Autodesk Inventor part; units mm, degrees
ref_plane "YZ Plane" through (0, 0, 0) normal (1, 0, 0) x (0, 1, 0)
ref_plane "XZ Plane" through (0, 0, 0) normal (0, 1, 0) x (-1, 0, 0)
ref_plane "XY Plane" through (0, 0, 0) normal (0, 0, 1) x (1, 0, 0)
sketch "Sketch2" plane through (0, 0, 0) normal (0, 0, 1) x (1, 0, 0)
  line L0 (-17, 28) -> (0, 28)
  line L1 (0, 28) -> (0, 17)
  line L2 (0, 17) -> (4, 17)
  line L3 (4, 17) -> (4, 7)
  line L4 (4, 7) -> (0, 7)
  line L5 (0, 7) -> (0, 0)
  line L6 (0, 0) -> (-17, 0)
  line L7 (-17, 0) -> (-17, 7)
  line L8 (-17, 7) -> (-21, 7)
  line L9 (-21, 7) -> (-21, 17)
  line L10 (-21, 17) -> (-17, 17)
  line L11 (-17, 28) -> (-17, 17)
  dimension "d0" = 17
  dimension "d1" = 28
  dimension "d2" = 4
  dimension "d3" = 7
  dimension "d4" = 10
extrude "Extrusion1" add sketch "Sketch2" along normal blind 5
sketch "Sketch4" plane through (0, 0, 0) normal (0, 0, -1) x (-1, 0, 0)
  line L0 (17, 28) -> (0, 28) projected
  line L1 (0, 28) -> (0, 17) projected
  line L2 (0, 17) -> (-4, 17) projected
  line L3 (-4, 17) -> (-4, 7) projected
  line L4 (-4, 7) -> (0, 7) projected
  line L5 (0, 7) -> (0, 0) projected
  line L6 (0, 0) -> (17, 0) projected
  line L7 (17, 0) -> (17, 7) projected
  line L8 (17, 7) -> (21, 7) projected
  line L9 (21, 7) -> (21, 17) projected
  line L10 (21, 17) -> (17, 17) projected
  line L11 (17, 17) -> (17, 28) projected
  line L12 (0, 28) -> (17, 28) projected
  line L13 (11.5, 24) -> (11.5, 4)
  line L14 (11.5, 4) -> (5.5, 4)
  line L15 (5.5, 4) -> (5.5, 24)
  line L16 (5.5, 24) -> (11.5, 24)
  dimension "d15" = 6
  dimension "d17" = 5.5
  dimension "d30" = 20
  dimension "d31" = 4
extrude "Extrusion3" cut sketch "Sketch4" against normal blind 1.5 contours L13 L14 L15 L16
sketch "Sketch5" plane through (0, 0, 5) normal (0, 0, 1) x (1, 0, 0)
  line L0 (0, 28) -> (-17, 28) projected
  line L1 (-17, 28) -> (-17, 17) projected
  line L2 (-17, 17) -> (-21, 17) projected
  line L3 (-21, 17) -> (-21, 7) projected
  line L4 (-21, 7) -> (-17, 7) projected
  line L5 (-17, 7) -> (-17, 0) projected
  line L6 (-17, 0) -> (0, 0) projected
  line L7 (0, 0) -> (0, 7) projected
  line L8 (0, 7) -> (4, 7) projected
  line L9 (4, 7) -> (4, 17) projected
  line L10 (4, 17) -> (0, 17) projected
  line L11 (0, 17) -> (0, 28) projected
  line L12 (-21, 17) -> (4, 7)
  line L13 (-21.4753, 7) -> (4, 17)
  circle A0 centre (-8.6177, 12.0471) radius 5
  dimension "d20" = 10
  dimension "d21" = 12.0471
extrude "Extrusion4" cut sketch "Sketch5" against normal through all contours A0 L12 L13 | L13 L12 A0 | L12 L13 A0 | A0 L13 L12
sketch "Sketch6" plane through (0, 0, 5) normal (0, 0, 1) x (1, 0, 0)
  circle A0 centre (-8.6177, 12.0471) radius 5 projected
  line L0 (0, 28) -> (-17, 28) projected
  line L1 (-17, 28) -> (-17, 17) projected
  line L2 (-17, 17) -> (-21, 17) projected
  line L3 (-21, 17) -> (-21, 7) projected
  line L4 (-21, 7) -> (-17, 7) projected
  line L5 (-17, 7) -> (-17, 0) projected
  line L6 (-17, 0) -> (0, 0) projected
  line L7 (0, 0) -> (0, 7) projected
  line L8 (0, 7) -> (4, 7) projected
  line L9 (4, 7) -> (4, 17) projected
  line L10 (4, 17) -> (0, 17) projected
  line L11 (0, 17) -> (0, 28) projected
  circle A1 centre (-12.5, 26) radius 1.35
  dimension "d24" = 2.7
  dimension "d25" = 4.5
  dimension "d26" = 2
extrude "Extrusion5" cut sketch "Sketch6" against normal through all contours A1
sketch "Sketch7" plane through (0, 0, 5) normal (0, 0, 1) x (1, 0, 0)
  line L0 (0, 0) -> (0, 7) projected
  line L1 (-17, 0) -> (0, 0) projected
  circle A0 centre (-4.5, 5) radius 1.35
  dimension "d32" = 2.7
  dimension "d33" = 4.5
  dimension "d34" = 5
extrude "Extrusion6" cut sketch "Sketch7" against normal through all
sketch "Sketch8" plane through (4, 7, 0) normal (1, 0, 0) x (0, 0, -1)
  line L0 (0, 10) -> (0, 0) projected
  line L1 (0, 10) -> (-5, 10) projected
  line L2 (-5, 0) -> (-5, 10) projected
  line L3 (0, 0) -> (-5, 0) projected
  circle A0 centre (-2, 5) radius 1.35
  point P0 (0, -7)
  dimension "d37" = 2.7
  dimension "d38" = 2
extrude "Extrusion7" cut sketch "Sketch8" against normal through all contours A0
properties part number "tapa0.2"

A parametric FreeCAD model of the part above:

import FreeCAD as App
import Part
import Sketcher

V = App.Vector
Q = App.Units.Quantity

doc = App.newDocument("Part")
params = doc.addObject("Spreadsheet::Sheet", "Params")
for row, (alias, value) in enumerate([
    ("sketch1_width", "17 mm"),
    ("sketch1_width2", "4 mm"),
    ("sketch1_height", "10 mm"),
    ("sketch1_height2", "7 mm"),
    ("pad1_length", "5 mm"),
    ("sketch2_width", "6 mm"),
    ("sketch2_height", "20 mm"),
    ("pocket1_length", "1.5 mm"),
    ("sketch3_diameter", "10 mm"),
    ("sketch4_diameter", "2.7 mm"),
    ("sketch5_diameter", "2.7 mm"),
    ("sketch6_diameter", "2.7 mm"),
], start=1):
    params.set(f"A{row}", alias)
    params.set(f"B{row}", "=" + value)
    params.setAlias(f"B{row}", alias)

body = doc.addObject("PartDesign::Body", "Body")

# Sketch on XY plane
sketch1 = body.newObject("Sketcher::SketchObject", "Sketch")
sketch1.AttachmentSupport = (doc.getObject("XY_Plane"), [""])
sketch1.MapMode = "FlatFace"
sketch1.addGeometry([
    Part.LineSegment(V(0, 28, 0), V(-17, 28, 0)),  # 0
    Part.LineSegment(V(-17, 28, 0), V(-17, 17, 0)),  # 1
    Part.LineSegment(V(-17, 17, 0), V(-21, 17, 0)),  # 2
    Part.LineSegment(V(-21, 17, 0), V(-21, 7, 0)),  # 3
    Part.LineSegment(V(-21, 7, 0), V(-17, 7, 0)),  # 4
    Part.LineSegment(V(-17, 7, 0), V(-17, 0, 0)),  # 5
    Part.LineSegment(V(-17, 0, 0), V(0, 0, 0)),  # 6
    Part.LineSegment(V(0, 0, 0), V(0, 7, 0)),  # 7
    Part.LineSegment(V(0, 7, 0), V(4, 7, 0)),  # 8
    Part.LineSegment(V(4, 7, 0), V(4, 17, 0)),  # 9
    Part.LineSegment(V(4, 17, 0), V(0, 17, 0)),  # 10
    Part.LineSegment(V(0, 17, 0), V(0, 28, 0)),  # 11
], False)
sketch1.addConstraint([
    Sketcher.Constraint("Coincident", 0, 2, 1, 1),
    Sketcher.Constraint("Coincident", 1, 2, 2, 1),
    Sketcher.Constraint("Coincident", 2, 2, 3, 1),
    Sketcher.Constraint("Coincident", 3, 2, 4, 1),
    Sketcher.Constraint("Coincident", 4, 2, 5, 1),
    Sketcher.Constraint("Coincident", 5, 2, 6, 1),
    Sketcher.Constraint("Coincident", 6, 2, 7, 1),
    Sketcher.Constraint("Coincident", 7, 2, 8, 1),
    Sketcher.Constraint("Coincident", 8, 2, 9, 1),
    Sketcher.Constraint("Coincident", 9, 2, 10, 1),
    Sketcher.Constraint("Coincident", 10, 2, 11, 1),
    Sketcher.Constraint("Coincident", 11, 2, 0, 1),
    Sketcher.Constraint("Horizontal", 0),
    Sketcher.Constraint("Vertical", 1),
    Sketcher.Constraint("Horizontal", 2),
    Sketcher.Constraint("Vertical", 3),
    Sketcher.Constraint("Horizontal", 4),
    Sketcher.Constraint("Vertical", 5),
    Sketcher.Constraint("Horizontal", 6),
    Sketcher.Constraint("Vertical", 7),
    Sketcher.Constraint("Horizontal", 8),
    Sketcher.Constraint("Vertical", 9),
    Sketcher.Constraint("Horizontal", 10),
    Sketcher.Constraint("Vertical", 11),
    Sketcher.Constraint("Coincident", 6, 2, -1, 1),
    Sketcher.Constraint("PointOnObject", 10, 2, -2),
    Sketcher.Constraint("Horizontal", 4, 2, 7, 2),
    Sketcher.Constraint("Horizontal", 2, 2, 9, 2),
    Sketcher.Constraint("Vertical", 1, 2, 4, 2),
    Sketcher.Constraint("Equal", 4, 8),
    Sketcher.Constraint("DistanceX", 0, 2, 0, 1, Q("17 mm")),
    Sketcher.Constraint("DistanceX", 2, 2, 2, 1, Q("4 mm")),
    Sketcher.Constraint("DistanceY", 3, 2, 3, 1, Q("10 mm")),
    Sketcher.Constraint("DistanceY", 5, 2, 5, 1, Q("7 mm")),
    Sketcher.Constraint("DistanceY", -1, 1, 0, 2, Q("28 mm")),
])
sketch1.setExpression("Constraints[30]", "Params.sketch1_width")
sketch1.setExpression("Constraints[31]", "Params.sketch1_width2")
sketch1.setExpression("Constraints[32]", "Params.sketch1_height")
sketch1.setExpression("Constraints[33]", "Params.sketch1_height2")
pad1 = body.newObject("PartDesign::Pad", "Pad")
pad1.Profile = sketch1
pad1.setExpression("Length", "Params.pad1_length")

# Sketch on XY plane
sketch2 = body.newObject("Sketcher::SketchObject", "Sketch001")
sketch2.AttachmentSupport = (doc.getObject("XY_Plane"), [""])
sketch2.MapMode = "FlatFace"
sketch2.addGeometry([
    Part.LineSegment(V(-11.5, 4, 0), V(-11.5, 24, 0)),
    Part.LineSegment(V(-11.5, 24, 0), V(-5.5, 24, 0)),
    Part.LineSegment(V(-5.5, 24, 0), V(-5.5, 4, 0)),
    Part.LineSegment(V(-5.5, 4, 0), V(-11.5, 4, 0)),
], False)
sketch2.addConstraint([
    Sketcher.Constraint("Coincident", 0, 2, 1, 1),
    Sketcher.Constraint("Coincident", 1, 2, 2, 1),
    Sketcher.Constraint("Coincident", 2, 2, 3, 1),
    Sketcher.Constraint("Coincident", 3, 2, 0, 1),
    Sketcher.Constraint("Vertical", 0),
    Sketcher.Constraint("Horizontal", 1),
    Sketcher.Constraint("Vertical", 2),
    Sketcher.Constraint("Horizontal", 3),
    Sketcher.Constraint("DistanceX", 1, 1, 1, 2, Q("6 mm")),
    Sketcher.Constraint("DistanceY", 0, 1, 0, 2, Q("20 mm")),
    Sketcher.Constraint("DistanceY", -1, 1, 2, 2, Q("4 mm")),
    Sketcher.Constraint("DistanceX", 1, 2, -1, 1, Q("5.5 mm")),
])
sketch2.setExpression("Constraints[8]", "Params.sketch2_width")
sketch2.setExpression("Constraints[9]", "Params.sketch2_height")
pocket1 = body.newObject("PartDesign::Pocket", "Pocket")
pocket1.Profile = sketch2
pocket1.setExpression("Length", "Params.pocket1_length")
pocket1.Reversed = True

# Sketch on XY plane
sketch3 = body.newObject("Sketcher::SketchObject", "Sketch002")
sketch3.AttachmentSupport = (doc.getObject("XY_Plane"), [""])
sketch3.MapMode = "FlatFace"
sketch3.AttachmentOffset = App.Placement(V(0, 0, 5), App.Rotation())
sketch3.addGeometry(Part.Circle(V(-8.6177, 12.0471, 0), V(0, 0, 1), 5), False)
sketch3.addConstraint([
    Sketcher.Constraint("Diameter", 0, Q("10 mm")),
    Sketcher.Constraint("DistanceY", -1, 1, 0, 3, Q("12.047 mm")),
    Sketcher.Constraint("DistanceX", 0, 3, -1, 1, Q("8.6177 mm")),
])
sketch3.setExpression("Constraints[0]", "Params.sketch3_diameter")
pocket2 = body.newObject("PartDesign::Pocket", "Pocket001")
pocket2.Profile = sketch3
pocket2.Type = "ThroughAll"

# Sketch on XY plane
sketch4 = body.newObject("Sketcher::SketchObject", "Sketch003")
sketch4.AttachmentSupport = (doc.getObject("XY_Plane"), [""])
sketch4.MapMode = "FlatFace"
sketch4.AttachmentOffset = App.Placement(V(0, 0, 5), App.Rotation())
sketch4.addGeometry(Part.Circle(V(-12.5, 26, 0), V(0, 0, 1), 1.35), False)
sketch4.addConstraint([
    Sketcher.Constraint("Diameter", 0, Q("2.7 mm")),
    Sketcher.Constraint("DistanceY", -1, 1, 0, 3, Q("26 mm")),
    Sketcher.Constraint("DistanceX", 0, 3, -1, 1, Q("12.5 mm")),
])
sketch4.setExpression("Constraints[0]", "Params.sketch4_diameter")
pocket3 = body.newObject("PartDesign::Pocket", "Pocket002")
pocket3.Profile = sketch4
pocket3.Type = "ThroughAll"

# Sketch on XY plane
sketch5 = body.newObject("Sketcher::SketchObject", "Sketch004")
sketch5.AttachmentSupport = (doc.getObject("XY_Plane"), [""])
sketch5.MapMode = "FlatFace"
sketch5.AttachmentOffset = App.Placement(V(0, 0, 5), App.Rotation())
sketch5.addGeometry(Part.Circle(V(-4.5, 5, 0), V(0, 0, 1), 1.35), False)
sketch5.addConstraint([
    Sketcher.Constraint("Diameter", 0, Q("2.7 mm")),
    Sketcher.Constraint("DistanceY", -1, 1, 0, 3, Q("5 mm")),
    Sketcher.Constraint("DistanceX", 0, 3, -1, 1, Q("4.5 mm")),
])
sketch5.setExpression("Constraints[0]", "Params.sketch5_diameter")
pocket4 = body.newObject("PartDesign::Pocket", "Pocket003")
pocket4.Profile = sketch5
pocket4.Type = "ThroughAll"

# Sketch on YZ plane
sketch6 = body.newObject("Sketcher::SketchObject", "Sketch005")
sketch6.AttachmentSupport = (doc.getObject("YZ_Plane"), [""])
sketch6.MapMode = "FlatFace"
sketch6.AttachmentOffset = App.Placement(V(0, 0, 4), App.Rotation())
sketch6.addGeometry(Part.Circle(V(12, 2, 0), V(0, 0, 1), 1.35), False)
sketch6.addConstraint([
    Sketcher.Constraint("Diameter", 0, Q("2.7 mm")),
    Sketcher.Constraint("DistanceY", -1, 1, 0, 3, Q("2 mm")),
    Sketcher.Constraint("DistanceX", -1, 1, 0, 3, Q("12 mm")),
])
sketch6.setExpression("Constraints[0]", "Params.sketch6_diameter")
pocket5 = body.newObject("PartDesign::Pocket", "Pocket004")
pocket5.Profile = sketch6
pocket5.Type = "ThroughAll"

doc.recompute()
